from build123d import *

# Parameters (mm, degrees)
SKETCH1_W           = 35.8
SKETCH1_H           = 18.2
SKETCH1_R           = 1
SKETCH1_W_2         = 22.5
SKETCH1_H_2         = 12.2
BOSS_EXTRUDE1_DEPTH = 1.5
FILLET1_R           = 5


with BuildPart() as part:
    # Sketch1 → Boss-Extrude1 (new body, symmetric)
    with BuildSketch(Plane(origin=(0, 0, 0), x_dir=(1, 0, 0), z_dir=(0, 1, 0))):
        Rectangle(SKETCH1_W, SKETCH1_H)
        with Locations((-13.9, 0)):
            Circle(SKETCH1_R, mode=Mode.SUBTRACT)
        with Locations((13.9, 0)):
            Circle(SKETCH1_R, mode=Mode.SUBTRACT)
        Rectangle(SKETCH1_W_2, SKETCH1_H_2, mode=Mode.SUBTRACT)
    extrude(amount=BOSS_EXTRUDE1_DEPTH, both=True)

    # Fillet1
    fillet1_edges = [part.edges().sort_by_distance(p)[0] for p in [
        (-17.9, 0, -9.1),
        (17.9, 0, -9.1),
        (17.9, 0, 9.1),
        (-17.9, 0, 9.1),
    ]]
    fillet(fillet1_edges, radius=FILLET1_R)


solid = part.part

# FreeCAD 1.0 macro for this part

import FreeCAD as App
import Part
import Sketcher

V = App.Vector


def edges_at(feature, points):
    """Names of the edges that pass closest to the given points."""
    edges = feature.Shape.Edges
    near = lambda p: min(range(len(edges)), key=lambda i: edges[i].distToShape(Part.Vertex(*p))[0])
    return sorted({f"Edge{near(p) + 1}" for p in points})

doc = App.newDocument("Part")
params = doc.addObject("Spreadsheet::Sheet", "Params")
for row, (alias, value) in enumerate([
    ("sketch1_diameter", "2 mm"),
    ("sketch1_width", "35.8 mm"),
    ("sketch1_width2", "22.5 mm"),
    ("sketch1_height", "18.2 mm"),
    ("sketch1_height2", "12.2 mm"),
    ("pad1_length", "3 mm"),
    ("fillet_radius", "5 mm"),
], start=1):
    params.set(f"A{row}", alias)
    params.set(f"B{row}", "=" + value)
    params.setAlias(f"B{row}", alias)

body = doc.addObject("PartDesign::Body", "Body")

sketch1 = body.newObject("Sketcher::SketchObject", "Sketch")
sketch1.AttachmentSupport = (doc.getObject("XZ_Plane"), [""])
sketch1.MapMode = "FlatFace"
sketch1.addGeometry(Part.LineSegment(V(-17.9, -9.1, 0), V(-17.9, 9.1, 0)), False)
sketch1.addGeometry(Part.LineSegment(V(-17.9, 9.1, 0), V(17.9, 9.1, 0)), False)
sketch1.addGeometry(Part.LineSegment(V(17.9, 9.1, 0), V(17.9, -9.1, 0)), False)
sketch1.addGeometry(Part.LineSegment(V(17.9, -9.1, 0), V(-17.9, -9.1, 0)), False)
sketch1.addGeometry(Part.Circle(V(-13.9, 0, 0), V(0, 0, 1), 1), False)
sketch1.addGeometry(Part.LineSegment(V(11.2, 6.1, 0), V(-11.2, 6.1, 0)), False)
sketch1.addGeometry(Part.LineSegment(V(-11.2, 6.1, 0), V(-11.2, -6.1, 0)), False)
sketch1.addGeometry(Part.LineSegment(V(-11.2, -6.1, 0), V(11.2, -6.1, 0)), False)
sketch1.addGeometry(Part.LineSegment(V(11.2, -6.1, 0), V(11.2, 6.1, 0)), False)
sketch1.addGeometry(Part.Circle(V(13.9, 0, 0), V(0, 0, 1), 1), False)
sketch1.addConstraint(Sketcher.Constraint("Coincident", 0, 2, 1, 1))
sketch1.addConstraint(Sketcher.Constraint("Coincident", 1, 2, 2, 1))
sketch1.addConstraint(Sketcher.Constraint("Coincident", 2, 2, 3, 1))
sketch1.addConstraint(Sketcher.Constraint("Coincident", 3, 2, 0, 1))
sketch1.addConstraint(Sketcher.Constraint("Coincident", 5, 2, 6, 1))
sketch1.addConstraint(Sketcher.Constraint("Coincident", 6, 2, 7, 1))
sketch1.addConstraint(Sketcher.Constraint("Coincident", 7, 2, 8, 1))
sketch1.addConstraint(Sketcher.Constraint("Coincident", 8, 2, 5, 1))
sketch1.addConstraint(Sketcher.Constraint("Vertical", 0))
sketch1.addConstraint(Sketcher.Constraint("Horizontal", 1))
sketch1.addConstraint(Sketcher.Constraint("Vertical", 2))
sketch1.addConstraint(Sketcher.Constraint("Horizontal", 3))
sketch1.addConstraint(Sketcher.Constraint("Horizontal", 5))
sketch1.addConstraint(Sketcher.Constraint("Vertical", 6))
sketch1.addConstraint(Sketcher.Constraint("Horizontal", 7))
sketch1.addConstraint(Sketcher.Constraint("Vertical", 8))
sketch1.addConstraint(Sketcher.Constraint("Equal", 4, 9))
sketch1.addConstraint(Sketcher.Constraint("Symmetric", 4, 3, 9, 3, -1, 1))
sketch1.addConstraint(Sketcher.Constraint("Symmetric", 0, 2, 2, 2, -1, 1))
sketch1.addConstraint(Sketcher.Constraint("Symmetric", 5, 2, 7, 2, -1, 1))
sketch1.addConstraint(Sketcher.Constraint("PointOnObject", 4, 3, -1))
sketch1.addConstraint(Sketcher.Constraint("Diameter", 4, 2.0))
sketch1.addConstraint(Sketcher.Constraint("DistanceX", 1, 1, 1, 2, 35.8))
sketch1.addConstraint(Sketcher.Constraint("DistanceX", 5, 2, 5, 1, 22.5))
sketch1.addConstraint(Sketcher.Constraint("DistanceY", 0, 1, 0, 2, 18.2))
sketch1.addConstraint(Sketcher.Constraint("DistanceY", 6, 2, 6, 1, 12.2))
sketch1.addConstraint(Sketcher.Constraint("DistanceX", 0, 2, 4, 3, 4.0))
sketch1.setExpression("Constraints[21]", "Params.sketch1_diameter")
sketch1.setExpression("Constraints[22]", "Params.sketch1_width")
sketch1.setExpression("Constraints[23]", "Params.sketch1_width2")
sketch1.setExpression("Constraints[24]", "Params.sketch1_height")
sketch1.setExpression("Constraints[25]", "Params.sketch1_height2")
pad1 = body.newObject("PartDesign::Pad", "Pad")
pad1.Profile = sketch1
pad1.setExpression("Length", "Params.pad1_length")
pad1.Midplane = True
doc.recompute()

fillet = body.newObject("PartDesign::Fillet", "Fillet")
fillet.Base = (pad1, edges_at(pad1, [
    (-17.9, 0, -9.1),
    (17.9, 0, -9.1),
    (17.9, 0, 9.1),
    (-17.9, 0, 9.1),
]))
fillet.setExpression("Radius", "Params.fillet_radius")

doc.recompute()
